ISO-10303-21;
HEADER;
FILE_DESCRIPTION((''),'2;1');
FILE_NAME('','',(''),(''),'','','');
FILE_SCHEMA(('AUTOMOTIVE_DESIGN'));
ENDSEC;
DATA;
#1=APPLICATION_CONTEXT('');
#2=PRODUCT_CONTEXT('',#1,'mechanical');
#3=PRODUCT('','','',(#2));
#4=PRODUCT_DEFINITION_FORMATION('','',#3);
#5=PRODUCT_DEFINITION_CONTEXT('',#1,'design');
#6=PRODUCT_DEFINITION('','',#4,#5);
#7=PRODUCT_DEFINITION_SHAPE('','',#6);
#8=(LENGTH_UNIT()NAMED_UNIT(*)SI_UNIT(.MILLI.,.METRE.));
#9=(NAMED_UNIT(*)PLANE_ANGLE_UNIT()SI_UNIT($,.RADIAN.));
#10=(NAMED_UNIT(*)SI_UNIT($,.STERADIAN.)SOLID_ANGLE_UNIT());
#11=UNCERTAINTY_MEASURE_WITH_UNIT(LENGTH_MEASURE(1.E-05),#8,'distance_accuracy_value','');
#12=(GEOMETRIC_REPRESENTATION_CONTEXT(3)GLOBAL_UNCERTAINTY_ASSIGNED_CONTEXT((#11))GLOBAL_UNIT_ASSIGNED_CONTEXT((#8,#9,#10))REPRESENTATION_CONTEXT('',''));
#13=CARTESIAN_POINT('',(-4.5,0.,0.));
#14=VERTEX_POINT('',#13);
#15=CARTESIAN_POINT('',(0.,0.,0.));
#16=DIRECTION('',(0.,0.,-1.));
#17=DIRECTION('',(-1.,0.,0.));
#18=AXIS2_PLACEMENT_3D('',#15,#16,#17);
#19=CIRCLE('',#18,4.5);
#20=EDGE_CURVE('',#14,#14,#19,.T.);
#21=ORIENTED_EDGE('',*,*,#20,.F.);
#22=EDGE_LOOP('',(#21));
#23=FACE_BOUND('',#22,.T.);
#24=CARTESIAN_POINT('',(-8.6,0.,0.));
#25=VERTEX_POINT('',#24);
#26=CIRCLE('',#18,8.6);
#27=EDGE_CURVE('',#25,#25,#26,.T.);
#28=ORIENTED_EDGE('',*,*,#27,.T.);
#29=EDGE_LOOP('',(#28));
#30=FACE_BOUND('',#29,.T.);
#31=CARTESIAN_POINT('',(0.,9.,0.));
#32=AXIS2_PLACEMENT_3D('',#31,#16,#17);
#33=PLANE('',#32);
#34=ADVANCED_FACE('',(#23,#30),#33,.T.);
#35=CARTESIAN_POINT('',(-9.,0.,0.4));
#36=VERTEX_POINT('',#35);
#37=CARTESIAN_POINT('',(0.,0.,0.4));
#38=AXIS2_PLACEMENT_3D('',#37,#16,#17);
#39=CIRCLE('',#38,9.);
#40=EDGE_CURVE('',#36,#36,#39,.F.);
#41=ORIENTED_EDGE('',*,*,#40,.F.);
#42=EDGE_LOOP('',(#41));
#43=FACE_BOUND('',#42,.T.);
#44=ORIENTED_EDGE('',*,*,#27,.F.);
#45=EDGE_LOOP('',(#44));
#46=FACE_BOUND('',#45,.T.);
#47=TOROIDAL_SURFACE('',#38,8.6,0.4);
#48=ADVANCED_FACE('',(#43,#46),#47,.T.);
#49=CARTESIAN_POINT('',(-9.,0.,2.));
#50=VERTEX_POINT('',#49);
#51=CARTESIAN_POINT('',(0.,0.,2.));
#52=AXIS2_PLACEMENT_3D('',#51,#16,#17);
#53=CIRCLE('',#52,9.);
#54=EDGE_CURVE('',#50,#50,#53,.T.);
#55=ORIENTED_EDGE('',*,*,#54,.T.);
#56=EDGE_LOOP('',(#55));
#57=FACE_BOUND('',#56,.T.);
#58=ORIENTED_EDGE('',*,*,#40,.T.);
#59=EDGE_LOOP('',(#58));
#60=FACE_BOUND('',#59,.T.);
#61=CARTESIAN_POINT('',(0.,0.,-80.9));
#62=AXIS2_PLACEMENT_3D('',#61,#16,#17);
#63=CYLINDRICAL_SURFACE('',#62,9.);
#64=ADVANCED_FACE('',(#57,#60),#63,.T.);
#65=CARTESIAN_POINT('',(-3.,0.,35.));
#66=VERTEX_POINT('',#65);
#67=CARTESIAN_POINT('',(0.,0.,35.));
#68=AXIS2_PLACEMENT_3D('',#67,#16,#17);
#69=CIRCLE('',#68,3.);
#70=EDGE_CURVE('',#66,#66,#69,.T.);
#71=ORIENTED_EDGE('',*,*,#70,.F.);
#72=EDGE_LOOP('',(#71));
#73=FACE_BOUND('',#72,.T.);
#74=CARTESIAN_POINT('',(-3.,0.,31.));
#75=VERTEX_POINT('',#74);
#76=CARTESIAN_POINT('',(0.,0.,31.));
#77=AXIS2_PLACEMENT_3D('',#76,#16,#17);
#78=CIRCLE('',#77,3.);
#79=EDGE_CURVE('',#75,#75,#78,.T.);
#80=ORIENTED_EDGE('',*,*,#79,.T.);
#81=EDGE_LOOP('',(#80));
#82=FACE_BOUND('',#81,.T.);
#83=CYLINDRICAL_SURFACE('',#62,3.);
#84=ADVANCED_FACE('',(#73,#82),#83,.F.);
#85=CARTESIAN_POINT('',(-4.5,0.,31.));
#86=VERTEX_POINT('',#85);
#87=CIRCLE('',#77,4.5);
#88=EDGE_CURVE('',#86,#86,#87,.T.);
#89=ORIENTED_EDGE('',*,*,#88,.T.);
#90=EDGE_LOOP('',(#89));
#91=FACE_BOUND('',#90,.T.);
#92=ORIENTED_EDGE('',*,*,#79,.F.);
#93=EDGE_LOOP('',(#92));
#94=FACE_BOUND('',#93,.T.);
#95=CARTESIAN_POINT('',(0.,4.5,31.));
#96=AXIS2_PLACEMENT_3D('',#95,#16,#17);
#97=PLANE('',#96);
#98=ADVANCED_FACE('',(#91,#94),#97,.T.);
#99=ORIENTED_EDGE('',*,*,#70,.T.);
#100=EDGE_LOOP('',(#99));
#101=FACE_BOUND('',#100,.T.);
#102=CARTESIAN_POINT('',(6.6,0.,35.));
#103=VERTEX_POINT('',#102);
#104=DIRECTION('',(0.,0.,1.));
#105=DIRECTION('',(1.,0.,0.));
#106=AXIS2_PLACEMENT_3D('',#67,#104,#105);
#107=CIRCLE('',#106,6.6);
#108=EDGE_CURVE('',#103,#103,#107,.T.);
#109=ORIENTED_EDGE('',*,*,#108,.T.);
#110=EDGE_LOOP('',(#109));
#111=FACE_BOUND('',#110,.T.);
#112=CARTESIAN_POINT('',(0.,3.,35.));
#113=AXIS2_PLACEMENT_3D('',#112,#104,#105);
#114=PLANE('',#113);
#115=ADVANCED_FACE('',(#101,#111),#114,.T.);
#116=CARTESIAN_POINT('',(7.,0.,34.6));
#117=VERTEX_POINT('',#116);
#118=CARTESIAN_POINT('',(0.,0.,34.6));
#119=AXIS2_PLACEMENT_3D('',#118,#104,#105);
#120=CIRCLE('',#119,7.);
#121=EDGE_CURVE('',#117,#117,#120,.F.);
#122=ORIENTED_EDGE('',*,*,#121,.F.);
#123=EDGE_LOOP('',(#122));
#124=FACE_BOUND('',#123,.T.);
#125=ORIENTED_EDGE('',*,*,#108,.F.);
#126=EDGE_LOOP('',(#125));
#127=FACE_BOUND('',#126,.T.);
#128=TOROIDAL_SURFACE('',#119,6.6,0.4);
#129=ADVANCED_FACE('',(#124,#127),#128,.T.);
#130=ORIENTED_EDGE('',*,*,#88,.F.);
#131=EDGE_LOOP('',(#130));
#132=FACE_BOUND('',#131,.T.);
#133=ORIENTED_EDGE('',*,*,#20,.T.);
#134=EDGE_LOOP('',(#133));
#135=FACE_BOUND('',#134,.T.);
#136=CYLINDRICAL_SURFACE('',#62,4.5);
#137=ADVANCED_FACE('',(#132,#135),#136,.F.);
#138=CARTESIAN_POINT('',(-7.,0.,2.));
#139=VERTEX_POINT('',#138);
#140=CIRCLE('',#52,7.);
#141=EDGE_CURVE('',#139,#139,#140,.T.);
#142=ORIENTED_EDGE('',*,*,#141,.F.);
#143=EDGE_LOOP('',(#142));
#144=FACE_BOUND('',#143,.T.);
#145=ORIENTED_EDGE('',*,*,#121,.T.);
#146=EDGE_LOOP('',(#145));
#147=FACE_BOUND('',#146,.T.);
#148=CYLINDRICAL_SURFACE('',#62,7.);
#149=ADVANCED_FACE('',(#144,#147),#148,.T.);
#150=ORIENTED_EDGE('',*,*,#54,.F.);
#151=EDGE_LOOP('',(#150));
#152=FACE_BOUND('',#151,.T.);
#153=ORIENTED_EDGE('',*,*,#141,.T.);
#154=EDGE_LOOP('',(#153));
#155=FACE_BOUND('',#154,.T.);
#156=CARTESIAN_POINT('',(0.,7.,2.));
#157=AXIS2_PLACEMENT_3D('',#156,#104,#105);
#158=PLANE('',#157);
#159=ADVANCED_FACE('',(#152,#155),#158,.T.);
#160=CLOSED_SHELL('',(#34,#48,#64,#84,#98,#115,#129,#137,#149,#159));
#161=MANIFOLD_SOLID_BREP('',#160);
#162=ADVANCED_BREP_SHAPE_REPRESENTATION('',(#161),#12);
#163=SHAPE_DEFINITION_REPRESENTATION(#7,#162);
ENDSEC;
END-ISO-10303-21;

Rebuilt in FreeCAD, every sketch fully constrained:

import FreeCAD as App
import Part
import Sketcher

V = App.Vector


def edges_at(feature, points):
    """Names of the edges that pass closest to the given points."""
    edges = feature.Shape.Edges
    near = lambda p: min(range(len(edges)), key=lambda i: edges[i].distToShape(Part.Vertex(*p))[0])
    return sorted({f"Edge{near(p) + 1}" for p in points})

doc = App.newDocument("Part")
params = doc.addObject("Spreadsheet::Sheet", "Params")
for row, (alias, value) in enumerate([
    ("sketch1_width", "2 mm"),
    ("sketch1_width2", "4 mm"),
    ("sketch1_height", "33 mm"),
    ("sketch1_width3", "1.5 mm"),
    ("revolution_angle", "360 deg"),
    ("fillet_radius", "0.4 mm"),
], start=1):
    params.set(f"A{row}", alias)
    params.set(f"B{row}", "=" + value)
    params.setAlias(f"B{row}", alias)

body = doc.addObject("PartDesign::Body", "Body")

# Sketch on YZ plane
sketch1 = body.newObject("Sketcher::SketchObject", "Sketch")
sketch1.AttachmentSupport = (doc.getObject("YZ_Plane"), [""])
sketch1.MapMode = "FlatFace"
sketch1.addGeometry([
    Part.LineSegment(V(9, 2, 0), V(7, 2, 0)),  # 0
    Part.LineSegment(V(7, 2, 0), V(7, 35, 0)),  # 1
    Part.LineSegment(V(7, 35, 0), V(3, 35, 0)),  # 2
    Part.LineSegment(V(3, 35, 0), V(3, 31, 0)),  # 3
    Part.LineSegment(V(3, 31, 0), V(4.5, 31, 0)),  # 4
    Part.LineSegment(V(4.5, 31, 0), V(4.5, 0, 0)),  # 5
    Part.LineSegment(V(4.5, 0, 0), V(9, 0, 0)),  # 6
    Part.LineSegment(V(9, 0, 0), V(9, 2, 0)),  # 7
], False)
sketch1.addConstraint([
    Sketcher.Constraint("Coincident", 0, 2, 1, 1),
    Sketcher.Constraint("Coincident", 1, 2, 2, 1),
    Sketcher.Constraint("Coincident", 2, 2, 3, 1),
    Sketcher.Constraint("Coincident", 3, 2, 4, 1),
    Sketcher.Constraint("Coincident", 4, 2, 5, 1),
    Sketcher.Constraint("Coincident", 5, 2, 6, 1),
    Sketcher.Constraint("Coincident", 6, 2, 7, 1),
    Sketcher.Constraint("Coincident", 7, 2, 0, 1),
    Sketcher.Constraint("Horizontal", 0),
    Sketcher.Constraint("Vertical", 1),
    Sketcher.Constraint("Horizontal", 2),
    Sketcher.Constraint("Vertical", 3),
    Sketcher.Constraint("Horizontal", 4),
    Sketcher.Constraint("Vertical", 5),
    Sketcher.Constraint("Horizontal", 6),
    Sketcher.Constraint("Vertical", 7),
    Sketcher.Constraint("PointOnObject", 5, 2, -1),
    Sketcher.Constraint("Equal", 2, 3),
    Sketcher.Constraint("Equal", 0, 7),
    Sketcher.Constraint("DistanceX", 0, 2, 0, 1, 2.0),
    Sketcher.Constraint("DistanceX", 2, 2, 2, 1, 4.0),
    Sketcher.Constraint("DistanceY", 1, 1, 1, 2, 33.0),
    Sketcher.Constraint("DistanceX", 4, 1, 4, 2, 1.5),
    Sketcher.Constraint("DistanceX", -1, 1, 0, 2, 7.0),
])
sketch1.setExpression("Constraints[19]", "Params.sketch1_width")
sketch1.setExpression("Constraints[20]", "Params.sketch1_width2")
sketch1.setExpression("Constraints[21]", "Params.sketch1_height")
sketch1.setExpression("Constraints[22]", "Params.sketch1_width3")
revolution = body.newObject("PartDesign::Revolution", "Revolution")
revolution.Profile = sketch1
revolution.ReferenceAxis = (sketch1, ["V_Axis"])
revolution.setExpression("Angle", "Params.revolution_angle")
doc.recompute()

fillet = body.newObject("PartDesign::Fillet", "Fillet")
fillet.Base = (revolution, edges_at(revolution, [(0, -7, 35), (0, -9, 0)]))
fillet.setExpression("Radius", "Params.fillet_radius")

doc.recompute()
